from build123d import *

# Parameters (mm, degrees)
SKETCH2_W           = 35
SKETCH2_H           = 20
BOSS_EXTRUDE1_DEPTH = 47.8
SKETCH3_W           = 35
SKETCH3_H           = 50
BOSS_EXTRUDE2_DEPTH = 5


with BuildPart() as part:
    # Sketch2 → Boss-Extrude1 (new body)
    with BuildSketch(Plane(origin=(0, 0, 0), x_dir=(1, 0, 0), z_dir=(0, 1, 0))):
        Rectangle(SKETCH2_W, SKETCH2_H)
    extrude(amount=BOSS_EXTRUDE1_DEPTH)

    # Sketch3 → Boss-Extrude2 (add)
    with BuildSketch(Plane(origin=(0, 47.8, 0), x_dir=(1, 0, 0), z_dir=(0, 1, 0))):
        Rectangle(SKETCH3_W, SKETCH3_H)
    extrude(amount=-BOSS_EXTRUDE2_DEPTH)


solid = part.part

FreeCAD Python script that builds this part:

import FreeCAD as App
import Part
import Sketcher

V = App.Vector
Q = App.Units.Quantity


def add_polygon(sketch, points):
    """Adds a closed chain of lines whose ends are joined by coincident constraints."""
    first, n = sketch.GeometryCount, len(points)
    for a, b in zip(points, points[1:] + points[:1]):
        sketch.addGeometry(Part.LineSegment(App.Vector(*a, 0), App.Vector(*b, 0)), False)
    for i in range(n):
        sketch.addConstraint(Sketcher.Constraint("Coincident", first + i, 2, first + (i + 1) % n, 1))

doc = App.newDocument("Part")
body = doc.addObject("PartDesign::Body", "Body")

sketch1 = body.newObject("Sketcher::SketchObject", "Sketch")
sketch1.AttachmentSupport = (doc.getObject("XZ_Plane"), [""])
sketch1.MapMode = "FlatFace"
add_polygon(sketch1, [(-17.5, -10), (-17.5, 10), (17.5, 10), (17.5, -10)])
sketch1.addConstraint(Sketcher.Constraint("Vertical", 0))
sketch1.addConstraint(Sketcher.Constraint("Horizontal", 1))
sketch1.addConstraint(Sketcher.Constraint("Vertical", 2))
sketch1.addConstraint(Sketcher.Constraint("Horizontal", 3))
sketch1.addConstraint(Sketcher.Constraint("Symmetric", 0, 2, 2, 2, -1, 1))
sketch1.addConstraint(Sketcher.Constraint("DistanceX", 1, 1, 1, 2, Q("35 mm")))
sketch1.addConstraint(Sketcher.Constraint("DistanceY", 0, 1, 0, 2, Q("20 mm")))
pad1 = body.newObject("PartDesign::Pad", "Pad")
pad1.Profile = sketch1
pad1.Length = 47.8
pad1.Reversed = True

sketch2 = body.newObject("Sketcher::SketchObject", "Sketch001")
sketch2.AttachmentSupport = (doc.getObject("XZ_Plane"), [""])
sketch2.MapMode = "FlatFace"
sketch2.AttachmentOffset = App.Placement(V(0, 0, -47.8), App.Rotation())
add_polygon(sketch2, [(-17.5, -25), (-17.5, 25), (17.5, 25), (17.5, -25)])
sketch2.addConstraint(Sketcher.Constraint("Vertical", 0))
sketch2.addConstraint(Sketcher.Constraint("Horizontal", 1))
sketch2.addConstraint(Sketcher.Constraint("Vertical", 2))
sketch2.addConstraint(Sketcher.Constraint("Horizontal", 3))
sketch2.addConstraint(Sketcher.Constraint("Symmetric", 0, 2, 2, 2, -1, 1))
sketch2.addConstraint(Sketcher.Constraint("DistanceX", 1, 1, 1, 2, Q("35 mm")))
sketch2.addConstraint(Sketcher.Constraint("DistanceY", 0, 1, 0, 2, Q("50 mm")))
pad2 = body.newObject("PartDesign::Pad", "Pad001")
pad2.Profile = sketch2
pad2.Length = 5

doc.recompute()
